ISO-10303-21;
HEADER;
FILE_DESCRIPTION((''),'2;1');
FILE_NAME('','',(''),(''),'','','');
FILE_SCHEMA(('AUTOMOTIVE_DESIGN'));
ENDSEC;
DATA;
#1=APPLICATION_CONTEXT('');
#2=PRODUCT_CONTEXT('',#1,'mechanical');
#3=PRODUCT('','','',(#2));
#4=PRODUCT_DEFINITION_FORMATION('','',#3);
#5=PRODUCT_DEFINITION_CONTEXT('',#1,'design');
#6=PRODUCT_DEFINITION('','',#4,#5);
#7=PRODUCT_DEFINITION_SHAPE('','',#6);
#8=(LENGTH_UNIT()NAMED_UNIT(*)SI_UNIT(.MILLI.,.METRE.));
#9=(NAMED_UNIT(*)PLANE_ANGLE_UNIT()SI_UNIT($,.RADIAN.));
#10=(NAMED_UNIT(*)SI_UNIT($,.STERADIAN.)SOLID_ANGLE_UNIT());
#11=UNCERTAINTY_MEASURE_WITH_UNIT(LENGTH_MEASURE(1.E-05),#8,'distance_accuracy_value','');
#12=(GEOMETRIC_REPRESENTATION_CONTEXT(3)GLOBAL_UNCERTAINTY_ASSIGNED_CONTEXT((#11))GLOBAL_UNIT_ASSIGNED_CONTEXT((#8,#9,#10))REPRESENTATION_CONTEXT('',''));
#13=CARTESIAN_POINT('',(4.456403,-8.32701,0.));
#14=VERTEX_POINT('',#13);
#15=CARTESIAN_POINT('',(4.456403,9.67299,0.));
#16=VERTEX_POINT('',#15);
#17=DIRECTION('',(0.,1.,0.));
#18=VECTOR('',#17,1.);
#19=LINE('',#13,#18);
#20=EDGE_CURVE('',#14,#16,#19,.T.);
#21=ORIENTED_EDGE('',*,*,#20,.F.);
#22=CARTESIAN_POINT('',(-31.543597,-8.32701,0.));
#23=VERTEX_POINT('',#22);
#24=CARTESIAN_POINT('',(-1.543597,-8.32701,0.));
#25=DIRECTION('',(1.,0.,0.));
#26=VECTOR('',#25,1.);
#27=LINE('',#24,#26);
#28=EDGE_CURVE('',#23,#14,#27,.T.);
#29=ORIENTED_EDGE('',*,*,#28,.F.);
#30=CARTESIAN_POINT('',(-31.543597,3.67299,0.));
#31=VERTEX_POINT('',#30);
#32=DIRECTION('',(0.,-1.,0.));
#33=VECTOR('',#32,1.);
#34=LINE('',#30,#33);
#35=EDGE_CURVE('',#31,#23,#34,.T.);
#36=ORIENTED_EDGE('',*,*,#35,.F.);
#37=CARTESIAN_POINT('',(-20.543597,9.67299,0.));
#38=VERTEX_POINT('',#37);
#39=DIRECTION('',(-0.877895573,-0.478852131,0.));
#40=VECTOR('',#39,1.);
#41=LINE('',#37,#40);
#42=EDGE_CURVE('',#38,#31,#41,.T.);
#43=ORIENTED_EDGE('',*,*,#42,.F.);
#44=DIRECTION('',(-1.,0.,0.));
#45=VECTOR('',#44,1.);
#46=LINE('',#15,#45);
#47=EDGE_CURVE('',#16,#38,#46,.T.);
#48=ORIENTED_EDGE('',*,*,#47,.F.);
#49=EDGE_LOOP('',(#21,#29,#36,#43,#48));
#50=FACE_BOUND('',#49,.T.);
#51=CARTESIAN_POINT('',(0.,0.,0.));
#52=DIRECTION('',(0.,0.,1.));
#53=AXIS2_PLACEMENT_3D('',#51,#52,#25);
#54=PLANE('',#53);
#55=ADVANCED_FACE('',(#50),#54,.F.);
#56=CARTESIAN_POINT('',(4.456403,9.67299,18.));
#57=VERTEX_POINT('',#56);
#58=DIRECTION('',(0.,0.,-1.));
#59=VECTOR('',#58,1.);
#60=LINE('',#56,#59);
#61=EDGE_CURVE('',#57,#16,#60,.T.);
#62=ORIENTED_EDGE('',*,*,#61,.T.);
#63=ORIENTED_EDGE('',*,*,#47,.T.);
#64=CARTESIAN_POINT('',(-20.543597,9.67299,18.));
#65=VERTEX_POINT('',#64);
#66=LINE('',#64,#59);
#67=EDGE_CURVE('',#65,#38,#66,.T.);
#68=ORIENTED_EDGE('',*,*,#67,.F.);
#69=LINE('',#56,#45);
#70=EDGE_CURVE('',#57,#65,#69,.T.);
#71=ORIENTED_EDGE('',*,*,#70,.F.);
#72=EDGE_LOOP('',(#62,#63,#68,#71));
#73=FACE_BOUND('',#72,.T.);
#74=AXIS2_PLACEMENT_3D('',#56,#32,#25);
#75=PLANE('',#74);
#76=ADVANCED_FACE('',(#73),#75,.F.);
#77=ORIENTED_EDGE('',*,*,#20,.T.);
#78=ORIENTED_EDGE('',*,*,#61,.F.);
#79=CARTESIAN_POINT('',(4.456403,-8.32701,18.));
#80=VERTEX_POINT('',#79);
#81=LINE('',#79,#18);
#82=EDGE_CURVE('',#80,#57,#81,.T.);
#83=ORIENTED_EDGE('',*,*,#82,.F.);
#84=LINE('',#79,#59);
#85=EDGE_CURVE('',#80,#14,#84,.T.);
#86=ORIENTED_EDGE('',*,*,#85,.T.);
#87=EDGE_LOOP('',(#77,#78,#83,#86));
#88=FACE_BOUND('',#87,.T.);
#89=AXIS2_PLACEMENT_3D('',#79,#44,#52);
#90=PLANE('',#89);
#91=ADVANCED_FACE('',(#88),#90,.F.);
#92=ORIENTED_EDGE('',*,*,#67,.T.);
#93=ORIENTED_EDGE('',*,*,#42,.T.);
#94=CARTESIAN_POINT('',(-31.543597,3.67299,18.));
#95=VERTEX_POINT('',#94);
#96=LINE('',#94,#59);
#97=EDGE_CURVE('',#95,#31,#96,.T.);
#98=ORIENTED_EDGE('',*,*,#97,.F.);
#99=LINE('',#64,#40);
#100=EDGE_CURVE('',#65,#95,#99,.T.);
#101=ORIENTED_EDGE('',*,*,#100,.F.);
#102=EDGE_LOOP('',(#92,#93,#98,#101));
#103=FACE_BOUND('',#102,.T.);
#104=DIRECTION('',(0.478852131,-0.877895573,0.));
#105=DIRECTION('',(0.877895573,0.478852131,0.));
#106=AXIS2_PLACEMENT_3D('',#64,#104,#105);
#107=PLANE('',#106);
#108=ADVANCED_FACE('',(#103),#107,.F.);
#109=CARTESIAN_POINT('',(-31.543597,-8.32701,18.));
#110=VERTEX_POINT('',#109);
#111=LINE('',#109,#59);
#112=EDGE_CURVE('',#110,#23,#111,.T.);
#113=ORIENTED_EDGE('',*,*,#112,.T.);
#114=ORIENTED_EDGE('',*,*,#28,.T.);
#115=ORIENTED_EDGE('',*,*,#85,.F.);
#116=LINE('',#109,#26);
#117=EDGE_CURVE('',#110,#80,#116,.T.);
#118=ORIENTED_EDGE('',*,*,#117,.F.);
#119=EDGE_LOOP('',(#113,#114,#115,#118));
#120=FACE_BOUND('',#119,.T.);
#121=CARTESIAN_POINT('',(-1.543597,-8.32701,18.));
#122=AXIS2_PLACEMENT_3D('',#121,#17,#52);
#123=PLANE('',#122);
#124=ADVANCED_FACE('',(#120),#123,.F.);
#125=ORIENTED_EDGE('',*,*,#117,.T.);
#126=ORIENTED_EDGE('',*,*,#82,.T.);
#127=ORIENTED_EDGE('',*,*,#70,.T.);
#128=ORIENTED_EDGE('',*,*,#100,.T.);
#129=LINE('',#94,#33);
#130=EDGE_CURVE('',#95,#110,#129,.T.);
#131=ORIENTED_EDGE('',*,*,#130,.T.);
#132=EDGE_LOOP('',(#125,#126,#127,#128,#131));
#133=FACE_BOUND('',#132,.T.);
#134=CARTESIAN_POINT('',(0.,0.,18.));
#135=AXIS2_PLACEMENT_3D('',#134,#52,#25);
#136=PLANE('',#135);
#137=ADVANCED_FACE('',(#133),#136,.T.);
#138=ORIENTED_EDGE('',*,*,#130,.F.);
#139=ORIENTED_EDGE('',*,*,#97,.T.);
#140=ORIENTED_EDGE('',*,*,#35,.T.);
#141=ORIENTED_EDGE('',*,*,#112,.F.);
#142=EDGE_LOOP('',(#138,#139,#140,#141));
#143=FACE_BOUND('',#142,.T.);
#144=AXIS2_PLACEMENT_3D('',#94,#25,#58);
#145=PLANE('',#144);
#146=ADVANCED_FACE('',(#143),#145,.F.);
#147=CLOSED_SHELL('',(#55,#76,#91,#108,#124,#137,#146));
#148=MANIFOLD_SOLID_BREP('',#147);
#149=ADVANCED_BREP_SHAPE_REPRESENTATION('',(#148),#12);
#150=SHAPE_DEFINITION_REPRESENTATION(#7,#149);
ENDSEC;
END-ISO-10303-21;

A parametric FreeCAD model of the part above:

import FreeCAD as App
import Part
import Sketcher
from FreeCAD import Vector

doc = App.newDocument("Part")
body = doc.addObject("PartDesign::Body", "Body")

# Sketch on XY plane
sketch1 = doc.addObject("Sketcher::SketchObject", "Sketch")
body.addObject(sketch1)
sketch1.AttachmentSupport = (doc.XY_Plane, [""])
sketch1.MapMode = "FlatFace"
sketch1.addGeometry(Part.LineSegment(Vector(-32, 4, 0), Vector(-32, -8, 0)), False)
sketch1.addGeometry(Part.LineSegment(Vector(-32, -8, 0), Vector(4, -8, 0)), False)
sketch1.addGeometry(Part.LineSegment(Vector(4, -8, 0), Vector(4, 10, 0)), False)
sketch1.addGeometry(Part.LineSegment(Vector(4, 10, 0), Vector(-21, 10, 0)), False)
sketch1.addGeometry(Part.LineSegment(Vector(-21, 10, 0), Vector(-32, 4, 0)), False)
sketch1.addConstraint(Sketcher.Constraint("Coincident", 0, 2, 1, 1))
sketch1.addConstraint(Sketcher.Constraint("Coincident", 1, 2, 2, 1))
sketch1.addConstraint(Sketcher.Constraint("Coincident", 2, 2, 3, 1))
sketch1.addConstraint(Sketcher.Constraint("Coincident", 3, 2, 4, 1))
sketch1.addConstraint(Sketcher.Constraint("Coincident", 4, 2, 0, 1))
sketch1.addConstraint(Sketcher.Constraint("Vertical", 0))
sketch1.addConstraint(Sketcher.Constraint("Horizontal", 1))
sketch1.addConstraint(Sketcher.Constraint("Vertical", 2))
sketch1.addConstraint(Sketcher.Constraint("Horizontal", 3))
sketch1.addConstraint(Sketcher.Constraint("DistanceX", 1, 1, 1, 2, 36.0))
sketch1.addConstraint(Sketcher.Constraint("DistanceX", 3, 2, 3, 1, 25.0))
sketch1.addConstraint(Sketcher.Constraint("DistanceY", 0, 2, 0, 1, 12.0))
sketch1.addConstraint(Sketcher.Constraint("DistanceY", 2, 1, 2, 2, 18.0))
sketch1.addConstraint(Sketcher.Constraint("DistanceY", 0, 2, -1, 1, 8.32701))
sketch1.addConstraint(Sketcher.Constraint("DistanceX", 0, 2, -1, 1, 31.543597))
pad1 = doc.addObject("PartDesign::Pad", "Pad")
body.addObject(pad1)
pad1.Profile = sketch1
pad1.Length = 18

doc.recompute()
